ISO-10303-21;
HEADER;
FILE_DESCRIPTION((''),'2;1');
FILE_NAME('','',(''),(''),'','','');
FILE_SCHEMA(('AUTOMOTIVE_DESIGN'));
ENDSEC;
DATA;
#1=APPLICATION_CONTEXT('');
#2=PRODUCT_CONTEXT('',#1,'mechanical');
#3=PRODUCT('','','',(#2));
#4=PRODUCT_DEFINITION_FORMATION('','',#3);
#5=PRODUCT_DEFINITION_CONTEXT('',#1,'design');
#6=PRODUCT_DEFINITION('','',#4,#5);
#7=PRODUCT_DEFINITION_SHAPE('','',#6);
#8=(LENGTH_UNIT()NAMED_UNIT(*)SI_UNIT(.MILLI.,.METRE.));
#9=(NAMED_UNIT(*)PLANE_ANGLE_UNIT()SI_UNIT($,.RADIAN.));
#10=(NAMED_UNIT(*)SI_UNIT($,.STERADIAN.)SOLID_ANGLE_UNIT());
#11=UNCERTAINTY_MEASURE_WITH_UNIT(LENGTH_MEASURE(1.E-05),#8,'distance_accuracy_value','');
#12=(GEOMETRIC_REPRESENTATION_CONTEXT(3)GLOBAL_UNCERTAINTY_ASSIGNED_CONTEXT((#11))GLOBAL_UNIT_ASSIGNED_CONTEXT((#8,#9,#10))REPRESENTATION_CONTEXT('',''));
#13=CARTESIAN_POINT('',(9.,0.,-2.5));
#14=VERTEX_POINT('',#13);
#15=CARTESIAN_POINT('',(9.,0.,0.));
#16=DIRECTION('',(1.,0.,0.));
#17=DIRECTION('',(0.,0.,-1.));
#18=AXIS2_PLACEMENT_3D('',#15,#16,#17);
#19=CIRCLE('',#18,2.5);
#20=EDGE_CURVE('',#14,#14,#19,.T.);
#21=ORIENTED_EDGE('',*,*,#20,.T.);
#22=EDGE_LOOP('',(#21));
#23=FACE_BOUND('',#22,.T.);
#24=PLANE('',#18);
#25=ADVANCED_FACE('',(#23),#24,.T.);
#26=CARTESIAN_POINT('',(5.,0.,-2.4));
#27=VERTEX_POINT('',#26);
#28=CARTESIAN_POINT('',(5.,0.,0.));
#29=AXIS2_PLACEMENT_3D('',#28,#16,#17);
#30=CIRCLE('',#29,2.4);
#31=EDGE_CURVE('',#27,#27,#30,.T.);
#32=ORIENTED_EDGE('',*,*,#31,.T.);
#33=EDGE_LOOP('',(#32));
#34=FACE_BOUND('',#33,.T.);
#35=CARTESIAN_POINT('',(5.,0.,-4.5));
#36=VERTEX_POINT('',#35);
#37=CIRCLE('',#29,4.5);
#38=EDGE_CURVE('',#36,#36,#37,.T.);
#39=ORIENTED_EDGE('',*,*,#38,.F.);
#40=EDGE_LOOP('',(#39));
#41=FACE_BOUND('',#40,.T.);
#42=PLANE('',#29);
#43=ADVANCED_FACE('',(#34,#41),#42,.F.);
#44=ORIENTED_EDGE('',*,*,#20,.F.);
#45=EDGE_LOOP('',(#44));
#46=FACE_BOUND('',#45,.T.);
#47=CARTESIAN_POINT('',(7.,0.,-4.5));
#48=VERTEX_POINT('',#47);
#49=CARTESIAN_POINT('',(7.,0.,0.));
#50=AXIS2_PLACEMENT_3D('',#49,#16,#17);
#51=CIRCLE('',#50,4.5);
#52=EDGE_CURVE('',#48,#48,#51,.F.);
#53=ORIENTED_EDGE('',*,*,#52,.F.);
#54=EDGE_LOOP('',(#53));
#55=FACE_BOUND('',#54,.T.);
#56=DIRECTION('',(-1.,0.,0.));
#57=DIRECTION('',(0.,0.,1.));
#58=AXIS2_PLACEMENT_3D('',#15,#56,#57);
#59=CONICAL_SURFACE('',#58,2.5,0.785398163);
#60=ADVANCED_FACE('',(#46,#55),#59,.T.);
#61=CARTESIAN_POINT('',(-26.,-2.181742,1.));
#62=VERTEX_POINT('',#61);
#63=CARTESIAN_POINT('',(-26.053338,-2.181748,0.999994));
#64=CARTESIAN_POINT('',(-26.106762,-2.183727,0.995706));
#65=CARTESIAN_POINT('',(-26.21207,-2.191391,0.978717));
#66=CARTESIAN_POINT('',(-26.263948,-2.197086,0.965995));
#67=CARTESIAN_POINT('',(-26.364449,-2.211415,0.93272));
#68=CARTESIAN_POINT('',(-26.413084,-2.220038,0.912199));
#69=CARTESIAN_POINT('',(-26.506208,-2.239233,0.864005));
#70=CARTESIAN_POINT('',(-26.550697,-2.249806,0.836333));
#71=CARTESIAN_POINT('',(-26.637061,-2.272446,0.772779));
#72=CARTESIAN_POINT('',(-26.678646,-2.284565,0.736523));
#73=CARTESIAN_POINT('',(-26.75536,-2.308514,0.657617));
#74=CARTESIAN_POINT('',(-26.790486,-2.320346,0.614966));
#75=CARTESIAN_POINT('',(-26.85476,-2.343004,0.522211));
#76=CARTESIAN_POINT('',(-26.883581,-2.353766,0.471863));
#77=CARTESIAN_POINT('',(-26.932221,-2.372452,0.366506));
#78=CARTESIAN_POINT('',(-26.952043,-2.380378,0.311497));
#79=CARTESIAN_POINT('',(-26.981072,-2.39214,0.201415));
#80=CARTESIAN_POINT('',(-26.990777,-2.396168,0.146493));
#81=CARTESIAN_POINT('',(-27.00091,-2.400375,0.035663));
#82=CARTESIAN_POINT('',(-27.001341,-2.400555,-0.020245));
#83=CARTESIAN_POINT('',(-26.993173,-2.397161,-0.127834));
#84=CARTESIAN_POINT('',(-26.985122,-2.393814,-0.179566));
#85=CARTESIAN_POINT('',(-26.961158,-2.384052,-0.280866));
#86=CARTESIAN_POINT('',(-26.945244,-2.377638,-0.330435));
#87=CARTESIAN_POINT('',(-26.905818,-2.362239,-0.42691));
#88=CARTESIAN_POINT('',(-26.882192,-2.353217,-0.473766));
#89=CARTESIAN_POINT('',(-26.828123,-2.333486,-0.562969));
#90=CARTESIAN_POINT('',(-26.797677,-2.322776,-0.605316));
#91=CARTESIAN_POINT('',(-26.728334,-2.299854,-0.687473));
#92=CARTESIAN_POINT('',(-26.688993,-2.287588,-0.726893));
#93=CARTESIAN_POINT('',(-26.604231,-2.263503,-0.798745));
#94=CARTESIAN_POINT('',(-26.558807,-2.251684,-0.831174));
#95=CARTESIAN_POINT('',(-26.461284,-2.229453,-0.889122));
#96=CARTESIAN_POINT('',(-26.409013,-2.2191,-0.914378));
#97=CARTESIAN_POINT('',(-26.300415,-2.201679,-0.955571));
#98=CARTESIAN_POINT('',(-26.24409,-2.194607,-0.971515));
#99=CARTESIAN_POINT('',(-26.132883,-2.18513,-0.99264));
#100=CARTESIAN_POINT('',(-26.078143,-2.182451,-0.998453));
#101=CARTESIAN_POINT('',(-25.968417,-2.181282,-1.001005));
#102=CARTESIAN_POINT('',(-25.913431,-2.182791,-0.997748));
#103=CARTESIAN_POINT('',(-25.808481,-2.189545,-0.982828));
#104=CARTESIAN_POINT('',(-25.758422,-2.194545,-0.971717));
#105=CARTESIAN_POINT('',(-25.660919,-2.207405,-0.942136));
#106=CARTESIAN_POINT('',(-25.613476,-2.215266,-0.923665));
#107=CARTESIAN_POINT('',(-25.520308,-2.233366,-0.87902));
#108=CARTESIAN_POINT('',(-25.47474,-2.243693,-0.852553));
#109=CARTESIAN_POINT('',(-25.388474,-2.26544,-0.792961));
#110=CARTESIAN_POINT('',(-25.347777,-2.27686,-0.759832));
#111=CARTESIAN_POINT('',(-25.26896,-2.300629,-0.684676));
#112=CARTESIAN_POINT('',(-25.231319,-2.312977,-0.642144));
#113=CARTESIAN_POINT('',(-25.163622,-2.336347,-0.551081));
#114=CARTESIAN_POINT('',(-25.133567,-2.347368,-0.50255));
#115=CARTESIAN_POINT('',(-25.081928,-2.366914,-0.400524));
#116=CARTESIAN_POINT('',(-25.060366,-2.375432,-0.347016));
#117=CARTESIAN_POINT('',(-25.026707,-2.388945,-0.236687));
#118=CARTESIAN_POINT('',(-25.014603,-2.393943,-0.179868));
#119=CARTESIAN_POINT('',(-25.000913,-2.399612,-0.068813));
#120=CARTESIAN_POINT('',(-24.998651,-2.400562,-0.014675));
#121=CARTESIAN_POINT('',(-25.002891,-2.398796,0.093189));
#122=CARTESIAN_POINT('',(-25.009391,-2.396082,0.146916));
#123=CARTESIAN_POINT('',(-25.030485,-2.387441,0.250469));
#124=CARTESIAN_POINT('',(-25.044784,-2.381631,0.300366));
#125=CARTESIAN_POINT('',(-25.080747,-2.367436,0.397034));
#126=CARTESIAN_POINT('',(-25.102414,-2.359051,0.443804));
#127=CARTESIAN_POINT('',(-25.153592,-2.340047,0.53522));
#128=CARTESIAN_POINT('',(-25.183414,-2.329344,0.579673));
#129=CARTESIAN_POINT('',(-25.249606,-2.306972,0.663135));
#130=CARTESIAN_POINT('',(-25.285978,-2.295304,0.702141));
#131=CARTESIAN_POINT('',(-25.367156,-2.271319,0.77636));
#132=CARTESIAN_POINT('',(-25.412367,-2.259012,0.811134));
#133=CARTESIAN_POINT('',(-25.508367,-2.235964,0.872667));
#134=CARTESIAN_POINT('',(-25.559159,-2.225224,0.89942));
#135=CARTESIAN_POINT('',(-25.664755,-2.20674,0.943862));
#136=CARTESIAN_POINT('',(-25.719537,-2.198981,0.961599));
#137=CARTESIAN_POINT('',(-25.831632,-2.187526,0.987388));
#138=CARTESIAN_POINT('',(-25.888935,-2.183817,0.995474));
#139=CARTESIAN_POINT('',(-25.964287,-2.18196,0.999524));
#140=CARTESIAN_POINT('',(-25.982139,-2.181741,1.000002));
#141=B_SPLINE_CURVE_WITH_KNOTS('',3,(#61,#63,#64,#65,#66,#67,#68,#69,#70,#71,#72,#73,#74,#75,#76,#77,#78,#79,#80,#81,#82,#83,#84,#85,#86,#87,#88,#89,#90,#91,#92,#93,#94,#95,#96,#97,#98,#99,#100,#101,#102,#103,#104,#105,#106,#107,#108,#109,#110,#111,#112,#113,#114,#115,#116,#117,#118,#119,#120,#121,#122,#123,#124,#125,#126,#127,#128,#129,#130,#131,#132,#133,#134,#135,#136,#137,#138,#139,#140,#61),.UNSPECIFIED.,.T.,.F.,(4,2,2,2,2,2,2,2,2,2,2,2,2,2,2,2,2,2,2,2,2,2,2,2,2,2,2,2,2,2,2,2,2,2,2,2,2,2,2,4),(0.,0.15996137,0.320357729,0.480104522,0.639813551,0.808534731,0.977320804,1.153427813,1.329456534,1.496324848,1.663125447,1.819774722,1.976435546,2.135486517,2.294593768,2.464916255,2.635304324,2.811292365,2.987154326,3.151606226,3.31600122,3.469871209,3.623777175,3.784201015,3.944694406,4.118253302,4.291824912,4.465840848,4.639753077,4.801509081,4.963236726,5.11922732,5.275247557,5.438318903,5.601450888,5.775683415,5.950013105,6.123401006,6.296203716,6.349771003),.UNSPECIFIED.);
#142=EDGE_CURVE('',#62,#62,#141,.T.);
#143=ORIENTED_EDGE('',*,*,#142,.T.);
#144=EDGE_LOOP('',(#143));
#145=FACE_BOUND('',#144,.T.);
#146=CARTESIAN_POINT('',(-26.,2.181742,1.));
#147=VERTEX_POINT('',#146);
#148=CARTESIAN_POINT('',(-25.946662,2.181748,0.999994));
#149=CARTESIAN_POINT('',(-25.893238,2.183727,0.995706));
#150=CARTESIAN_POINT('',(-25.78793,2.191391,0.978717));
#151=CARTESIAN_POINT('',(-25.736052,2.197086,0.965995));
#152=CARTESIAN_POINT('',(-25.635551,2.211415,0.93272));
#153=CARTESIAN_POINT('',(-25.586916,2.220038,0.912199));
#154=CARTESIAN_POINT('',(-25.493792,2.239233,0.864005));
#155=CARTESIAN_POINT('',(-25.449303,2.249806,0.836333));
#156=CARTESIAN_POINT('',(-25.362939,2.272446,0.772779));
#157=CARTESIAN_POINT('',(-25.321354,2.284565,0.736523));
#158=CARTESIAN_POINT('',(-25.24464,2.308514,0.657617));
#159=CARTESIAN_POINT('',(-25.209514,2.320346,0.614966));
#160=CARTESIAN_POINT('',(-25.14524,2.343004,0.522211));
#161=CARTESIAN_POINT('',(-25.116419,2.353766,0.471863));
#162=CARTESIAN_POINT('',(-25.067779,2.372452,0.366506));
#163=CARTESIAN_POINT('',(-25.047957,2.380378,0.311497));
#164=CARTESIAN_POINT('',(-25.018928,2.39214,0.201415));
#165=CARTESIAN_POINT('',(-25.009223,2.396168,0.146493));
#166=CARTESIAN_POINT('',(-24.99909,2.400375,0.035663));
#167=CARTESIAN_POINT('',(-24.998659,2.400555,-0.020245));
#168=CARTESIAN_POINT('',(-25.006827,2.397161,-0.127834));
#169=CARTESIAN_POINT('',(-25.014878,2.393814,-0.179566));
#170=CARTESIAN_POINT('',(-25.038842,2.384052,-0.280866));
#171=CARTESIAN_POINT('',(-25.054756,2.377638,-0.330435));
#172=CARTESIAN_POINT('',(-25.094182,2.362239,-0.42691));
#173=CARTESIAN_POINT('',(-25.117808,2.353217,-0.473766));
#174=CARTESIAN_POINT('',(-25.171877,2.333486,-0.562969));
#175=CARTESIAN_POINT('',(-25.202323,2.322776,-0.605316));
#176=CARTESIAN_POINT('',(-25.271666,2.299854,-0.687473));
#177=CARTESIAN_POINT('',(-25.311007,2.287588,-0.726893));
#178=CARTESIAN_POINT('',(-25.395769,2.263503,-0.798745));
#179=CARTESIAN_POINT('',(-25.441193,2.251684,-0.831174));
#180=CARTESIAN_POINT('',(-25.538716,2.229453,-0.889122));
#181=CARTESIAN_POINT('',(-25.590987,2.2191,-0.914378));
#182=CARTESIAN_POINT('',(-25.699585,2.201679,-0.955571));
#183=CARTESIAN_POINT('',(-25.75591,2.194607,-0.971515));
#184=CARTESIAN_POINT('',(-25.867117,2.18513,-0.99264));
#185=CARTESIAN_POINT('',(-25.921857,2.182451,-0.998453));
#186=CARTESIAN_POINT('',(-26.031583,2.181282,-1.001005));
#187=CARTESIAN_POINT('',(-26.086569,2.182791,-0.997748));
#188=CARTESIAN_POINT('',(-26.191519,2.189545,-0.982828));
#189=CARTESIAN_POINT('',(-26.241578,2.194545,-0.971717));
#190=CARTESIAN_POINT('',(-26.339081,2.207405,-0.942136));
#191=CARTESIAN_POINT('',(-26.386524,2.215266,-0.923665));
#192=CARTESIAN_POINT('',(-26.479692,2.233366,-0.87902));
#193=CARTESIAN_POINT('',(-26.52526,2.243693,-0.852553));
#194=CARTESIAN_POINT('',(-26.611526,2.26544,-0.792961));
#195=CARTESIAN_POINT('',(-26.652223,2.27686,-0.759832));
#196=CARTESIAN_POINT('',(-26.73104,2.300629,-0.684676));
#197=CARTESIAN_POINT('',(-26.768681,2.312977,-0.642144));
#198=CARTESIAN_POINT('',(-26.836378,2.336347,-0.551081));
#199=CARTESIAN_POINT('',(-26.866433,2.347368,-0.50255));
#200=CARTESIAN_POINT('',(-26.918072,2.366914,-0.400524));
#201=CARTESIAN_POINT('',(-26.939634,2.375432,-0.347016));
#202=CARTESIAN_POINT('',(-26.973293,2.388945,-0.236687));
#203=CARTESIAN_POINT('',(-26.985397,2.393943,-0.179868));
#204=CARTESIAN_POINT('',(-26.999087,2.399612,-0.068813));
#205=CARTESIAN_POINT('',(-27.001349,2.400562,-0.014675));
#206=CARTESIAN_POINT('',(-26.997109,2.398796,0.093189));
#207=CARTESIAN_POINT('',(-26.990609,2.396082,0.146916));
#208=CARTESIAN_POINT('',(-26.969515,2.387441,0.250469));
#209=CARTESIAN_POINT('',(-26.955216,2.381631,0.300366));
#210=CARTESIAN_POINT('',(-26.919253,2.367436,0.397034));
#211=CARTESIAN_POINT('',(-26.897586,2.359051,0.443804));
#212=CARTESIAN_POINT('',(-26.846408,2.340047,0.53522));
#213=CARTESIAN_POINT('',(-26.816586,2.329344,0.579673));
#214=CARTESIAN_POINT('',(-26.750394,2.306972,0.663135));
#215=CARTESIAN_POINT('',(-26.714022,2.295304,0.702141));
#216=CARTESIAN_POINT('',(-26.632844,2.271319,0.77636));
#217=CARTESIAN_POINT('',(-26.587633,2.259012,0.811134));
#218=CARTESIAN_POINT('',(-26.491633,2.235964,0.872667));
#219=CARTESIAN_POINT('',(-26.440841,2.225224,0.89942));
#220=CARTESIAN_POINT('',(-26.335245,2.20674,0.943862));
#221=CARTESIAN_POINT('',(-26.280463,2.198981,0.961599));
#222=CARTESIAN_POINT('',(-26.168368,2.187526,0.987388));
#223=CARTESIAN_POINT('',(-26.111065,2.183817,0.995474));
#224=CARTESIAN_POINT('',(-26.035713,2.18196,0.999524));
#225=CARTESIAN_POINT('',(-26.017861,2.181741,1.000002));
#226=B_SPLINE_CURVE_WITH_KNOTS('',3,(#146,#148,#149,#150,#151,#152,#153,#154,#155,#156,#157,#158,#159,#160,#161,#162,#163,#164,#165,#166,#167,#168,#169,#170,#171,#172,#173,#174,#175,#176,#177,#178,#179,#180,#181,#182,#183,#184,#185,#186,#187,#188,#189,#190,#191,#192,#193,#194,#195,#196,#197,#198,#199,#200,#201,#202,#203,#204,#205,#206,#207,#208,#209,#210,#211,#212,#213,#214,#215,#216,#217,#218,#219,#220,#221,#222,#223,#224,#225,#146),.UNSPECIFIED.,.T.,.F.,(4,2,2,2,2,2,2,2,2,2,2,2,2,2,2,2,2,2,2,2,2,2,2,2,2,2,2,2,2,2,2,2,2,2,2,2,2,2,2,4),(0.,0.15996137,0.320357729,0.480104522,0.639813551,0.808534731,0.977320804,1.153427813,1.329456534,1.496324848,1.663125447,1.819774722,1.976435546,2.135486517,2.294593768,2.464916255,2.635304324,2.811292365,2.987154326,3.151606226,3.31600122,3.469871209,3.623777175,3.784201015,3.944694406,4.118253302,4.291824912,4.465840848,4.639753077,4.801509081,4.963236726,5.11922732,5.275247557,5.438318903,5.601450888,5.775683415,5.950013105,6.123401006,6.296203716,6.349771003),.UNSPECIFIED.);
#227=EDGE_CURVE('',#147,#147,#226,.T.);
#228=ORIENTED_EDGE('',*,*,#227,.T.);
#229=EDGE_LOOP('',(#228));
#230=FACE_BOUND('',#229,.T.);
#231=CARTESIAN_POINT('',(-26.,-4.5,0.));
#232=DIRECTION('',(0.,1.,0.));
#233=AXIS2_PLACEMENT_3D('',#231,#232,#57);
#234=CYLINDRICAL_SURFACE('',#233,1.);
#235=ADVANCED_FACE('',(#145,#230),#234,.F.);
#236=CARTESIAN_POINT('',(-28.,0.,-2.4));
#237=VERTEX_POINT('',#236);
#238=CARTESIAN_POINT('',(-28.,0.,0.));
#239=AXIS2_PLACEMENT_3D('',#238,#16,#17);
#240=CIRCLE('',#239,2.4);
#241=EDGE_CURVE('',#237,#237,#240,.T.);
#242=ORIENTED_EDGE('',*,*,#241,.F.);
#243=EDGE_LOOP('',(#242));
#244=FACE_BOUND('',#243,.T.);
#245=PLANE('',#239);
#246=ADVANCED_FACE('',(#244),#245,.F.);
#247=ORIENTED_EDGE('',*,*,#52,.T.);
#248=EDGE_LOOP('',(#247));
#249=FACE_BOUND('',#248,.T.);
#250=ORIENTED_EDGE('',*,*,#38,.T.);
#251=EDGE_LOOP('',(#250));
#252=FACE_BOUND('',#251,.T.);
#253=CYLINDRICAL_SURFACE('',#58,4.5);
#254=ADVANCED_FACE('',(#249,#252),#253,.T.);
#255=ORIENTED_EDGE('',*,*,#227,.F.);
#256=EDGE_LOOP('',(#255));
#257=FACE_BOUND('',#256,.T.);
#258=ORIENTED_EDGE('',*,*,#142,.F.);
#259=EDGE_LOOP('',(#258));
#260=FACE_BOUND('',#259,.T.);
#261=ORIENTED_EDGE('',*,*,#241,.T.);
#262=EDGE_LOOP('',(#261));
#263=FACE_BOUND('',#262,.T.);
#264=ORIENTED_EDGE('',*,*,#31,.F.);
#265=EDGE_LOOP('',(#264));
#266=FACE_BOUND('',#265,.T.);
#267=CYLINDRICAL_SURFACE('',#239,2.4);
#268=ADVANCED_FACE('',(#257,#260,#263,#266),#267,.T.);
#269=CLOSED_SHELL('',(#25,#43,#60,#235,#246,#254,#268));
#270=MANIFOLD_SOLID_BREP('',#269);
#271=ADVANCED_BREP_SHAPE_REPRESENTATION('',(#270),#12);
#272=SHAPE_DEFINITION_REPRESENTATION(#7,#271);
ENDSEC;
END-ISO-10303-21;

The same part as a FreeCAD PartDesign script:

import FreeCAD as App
import Part
import Sketcher

V = App.Vector
Q = App.Units.Quantity


def edges_at(feature, points):
    """Names of the edges that pass closest to the given points."""
    edges = feature.Shape.Edges
    near = lambda p: min(range(len(edges)), key=lambda i: edges[i].distToShape(Part.Vertex(*p))[0])
    return sorted({f"Edge{near(p) + 1}" for p in points})

doc = App.newDocument("Part")
params = doc.addObject("Spreadsheet::Sheet", "Params")
for row, (alias, value) in enumerate([
    ("sketch1_diameter", "4.8 mm"),
    ("pad1_length", "5 mm"),
    ("pad1_length2", "28 mm"),
    ("sketch2_diameter", "9 mm"),
    ("pad2_length", "4 mm"),
    ("chamfer_size", "2 mm"),
    ("sketch3_diameter", "2 mm"),
], start=1):
    params.set(f"A{row}", alias)
    params.set(f"B{row}", "=" + value)
    params.setAlias(f"B{row}", alias)

body = doc.addObject("PartDesign::Body", "Body")

# Sketch on YZ plane
sketch1 = body.newObject("Sketcher::SketchObject", "Sketch")
sketch1.AttachmentSupport = (doc.getObject("YZ_Plane"), [""])
sketch1.MapMode = "FlatFace"
sketch1.addGeometry(Part.Circle(V(0, 0, 0), V(0, 0, 1), 2.4), False)
sketch1.addConstraint(Sketcher.Constraint("Coincident", 0, 3, -1, 1))
sketch1.addConstraint(Sketcher.Constraint("Diameter", 0, Q("4.8 mm")))
sketch1.setExpression("Constraints[1]", "Params.sketch1_diameter")
pad1 = body.newObject("PartDesign::Pad", "Pad")
pad1.Profile = sketch1
pad1.Type = "TwoLengths"
pad1.setExpression("Length", "Params.pad1_length")
pad1.setExpression("Length2", "Params.pad1_length2")

# Sketch on YZ plane
sketch2 = body.newObject("Sketcher::SketchObject", "Sketch001")
sketch2.AttachmentSupport = (doc.getObject("YZ_Plane"), [""])
sketch2.MapMode = "FlatFace"
sketch2.AttachmentOffset = App.Placement(V(0, 0, 5), App.Rotation())
sketch2.addGeometry(Part.Circle(V(0, 0, 0), V(0, 0, 1), 4.5), False)
sketch2.addConstraint(Sketcher.Constraint("Coincident", 0, 3, -1, 1))
sketch2.addConstraint(Sketcher.Constraint("Diameter", 0, Q("9 mm")))
sketch2.setExpression("Constraints[1]", "Params.sketch2_diameter")
pad2 = body.newObject("PartDesign::Pad", "Pad001")
pad2.Profile = sketch2
pad2.setExpression("Length", "Params.pad2_length")
doc.recompute()

chamfer = body.newObject("PartDesign::Chamfer", "Chamfer")
chamfer.Base = (pad2, edges_at(pad2, [(9, 0, 4.5)]))
chamfer.setExpression("Size", "Params.chamfer_size")

# Sketch on XZ plane
sketch3 = body.newObject("Sketcher::SketchObject", "Sketch002")
sketch3.AttachmentSupport = (doc.getObject("XZ_Plane"), [""])
sketch3.MapMode = "FlatFace"
sketch3.addGeometry(Part.Circle(V(-26, 0, 0), V(0, 0, 1), 1), False)
sketch3.addConstraint(Sketcher.Constraint("PointOnObject", 0, 3, -1))
sketch3.addConstraint(Sketcher.Constraint("Diameter", 0, Q("2 mm")))
sketch3.addConstraint(Sketcher.Constraint("DistanceX", 0, 3, -1, 1, Q("26 mm")))
sketch3.setExpression("Constraints[1]", "Params.sketch3_diameter")
pocket1 = body.newObject("PartDesign::Pocket", "Pocket")
pocket1.Profile = sketch3
pocket1.Type = "ThroughAll"
pocket1.Midplane = True

doc.recompute()
